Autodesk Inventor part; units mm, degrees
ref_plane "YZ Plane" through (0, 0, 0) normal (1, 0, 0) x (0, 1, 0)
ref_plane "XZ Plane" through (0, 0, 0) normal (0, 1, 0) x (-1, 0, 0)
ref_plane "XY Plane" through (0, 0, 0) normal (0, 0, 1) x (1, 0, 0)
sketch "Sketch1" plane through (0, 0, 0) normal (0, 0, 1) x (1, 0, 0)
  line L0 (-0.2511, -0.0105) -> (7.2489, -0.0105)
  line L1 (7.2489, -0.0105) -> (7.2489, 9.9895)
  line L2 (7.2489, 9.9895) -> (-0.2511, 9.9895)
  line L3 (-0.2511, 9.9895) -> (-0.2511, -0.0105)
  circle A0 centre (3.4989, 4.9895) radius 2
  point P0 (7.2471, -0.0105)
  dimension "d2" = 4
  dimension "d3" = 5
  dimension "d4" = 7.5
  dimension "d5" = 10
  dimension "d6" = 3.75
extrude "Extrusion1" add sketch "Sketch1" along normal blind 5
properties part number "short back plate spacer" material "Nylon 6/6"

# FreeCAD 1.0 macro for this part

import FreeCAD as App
import Part
import Sketcher
from FreeCAD import Vector
Q = App.Units.Quantity

doc = App.newDocument("Part")
body = doc.addObject("PartDesign::Body", "Body")

# Sketch on XY plane
sketch1 = body.newObject("Sketcher::SketchObject", "Sketch")
sketch1.AttachmentSupport = (doc.getObject("XY_Plane"), [""])
sketch1.MapMode = "FlatFace"
sketch1.addGeometry(Part.LineSegment(Vector(-0.2511, 9.9895, 0), Vector(-0.2511, -0.0105, 0)), False)
sketch1.addGeometry(Part.LineSegment(Vector(-0.2511, -0.0105, 0), Vector(7.2489, -0.0105, 0)), False)
sketch1.addGeometry(Part.LineSegment(Vector(7.2489, -0.0105, 0), Vector(7.2489, 9.9895, 0)), False)
sketch1.addGeometry(Part.LineSegment(Vector(7.2489, 9.9895, 0), Vector(-0.2511, 9.9895, 0)), False)
sketch1.addGeometry(Part.Circle(Vector(3.4989, 4.9895, 0), Vector(0, 0, 1), 2), False)
sketch1.addConstraint(Sketcher.Constraint("Coincident", 0, 2, 1, 1))
sketch1.addConstraint(Sketcher.Constraint("Coincident", 1, 2, 2, 1))
sketch1.addConstraint(Sketcher.Constraint("Coincident", 2, 2, 3, 1))
sketch1.addConstraint(Sketcher.Constraint("Coincident", 3, 2, 0, 1))
sketch1.addConstraint(Sketcher.Constraint("Vertical", 0))
sketch1.addConstraint(Sketcher.Constraint("Horizontal", 1))
sketch1.addConstraint(Sketcher.Constraint("Vertical", 2))
sketch1.addConstraint(Sketcher.Constraint("Horizontal", 3))
sketch1.addConstraint(Sketcher.Constraint("Diameter", 4, Q("4 mm")))
sketch1.addConstraint(Sketcher.Constraint("DistanceY", 0, 2, 0, 1, Q("10 mm")))
sketch1.addConstraint(Sketcher.Constraint("DistanceX", 1, 1, 1, 2, Q("7.5 mm")))
sketch1.addConstraint(Sketcher.Constraint("DistanceY", 0, 2, 4, 3, Q("5 mm")))
sketch1.addConstraint(Sketcher.Constraint("DistanceX", 0, 2, 4, 3, Q("3.75 mm")))
sketch1.addConstraint(Sketcher.Constraint("DistanceX", -1, 1, 4, 3, Q("3.499 mm")))
sketch1.addConstraint(Sketcher.Constraint("DistanceY", -1, 1, 4, 3, Q("4.9895 mm")))
pad1 = body.newObject("PartDesign::Pad", "Pad")
pad1.Profile = sketch1
pad1.Length = 5

doc.recompute()
